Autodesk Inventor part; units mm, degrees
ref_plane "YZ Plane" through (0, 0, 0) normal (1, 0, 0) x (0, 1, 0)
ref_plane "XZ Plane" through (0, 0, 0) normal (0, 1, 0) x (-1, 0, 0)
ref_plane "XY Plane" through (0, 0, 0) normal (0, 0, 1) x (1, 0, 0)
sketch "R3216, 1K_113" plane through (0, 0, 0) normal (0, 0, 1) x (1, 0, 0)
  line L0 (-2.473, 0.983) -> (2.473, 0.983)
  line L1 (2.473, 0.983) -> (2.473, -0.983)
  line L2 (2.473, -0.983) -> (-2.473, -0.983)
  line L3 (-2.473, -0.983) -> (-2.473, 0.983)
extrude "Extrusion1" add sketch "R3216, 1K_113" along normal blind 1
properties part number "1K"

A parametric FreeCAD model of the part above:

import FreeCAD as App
import Part
import Sketcher

V = App.Vector


def add_polygon(sketch, points):
    """Adds a closed chain of lines whose ends are joined by coincident constraints."""
    first, n = sketch.GeometryCount, len(points)
    for a, b in zip(points, points[1:] + points[:1]):
        sketch.addGeometry(Part.LineSegment(App.Vector(*a, 0), App.Vector(*b, 0)), False)
    for i in range(n):
        sketch.addConstraint(Sketcher.Constraint("Coincident", first + i, 2, first + (i + 1) % n, 1))

doc = App.newDocument("Part")
params = doc.addObject("Spreadsheet::Sheet", "Params")
for row, (alias, value) in enumerate([
    ("pad1_length", "1 mm"),
], start=1):
    params.set(f"A{row}", alias)
    params.set(f"B{row}", "=" + value)
    params.setAlias(f"B{row}", alias)

body = doc.addObject("PartDesign::Body", "Body")

sketch1 = body.newObject("Sketcher::SketchObject", "Sketch")
sketch1.AttachmentSupport = (doc.getObject("XY_Plane"), [""])
sketch1.MapMode = "FlatFace"
add_polygon(sketch1, [(2.5, 1), (-2.5, 1), (-2.5, -1), (2.5, -1)])
sketch1.addConstraint(Sketcher.Constraint("Horizontal", 0))
sketch1.addConstraint(Sketcher.Constraint("Vertical", 1))
sketch1.addConstraint(Sketcher.Constraint("Horizontal", 2))
sketch1.addConstraint(Sketcher.Constraint("Vertical", 3))
sketch1.addConstraint(Sketcher.Constraint("Symmetric", 0, 2, 2, 2, -1, 1))
sketch1.addConstraint(Sketcher.Constraint("DistanceX", 0, 2, 0, 1, 4.946))
sketch1.addConstraint(Sketcher.Constraint("DistanceY", 1, 2, 1, 1, 1.966))
pad1 = body.newObject("PartDesign::Pad", "Pad")
pad1.Profile = sketch1
pad1.setExpression("Length", "Params.pad1_length")

doc.recompute()
